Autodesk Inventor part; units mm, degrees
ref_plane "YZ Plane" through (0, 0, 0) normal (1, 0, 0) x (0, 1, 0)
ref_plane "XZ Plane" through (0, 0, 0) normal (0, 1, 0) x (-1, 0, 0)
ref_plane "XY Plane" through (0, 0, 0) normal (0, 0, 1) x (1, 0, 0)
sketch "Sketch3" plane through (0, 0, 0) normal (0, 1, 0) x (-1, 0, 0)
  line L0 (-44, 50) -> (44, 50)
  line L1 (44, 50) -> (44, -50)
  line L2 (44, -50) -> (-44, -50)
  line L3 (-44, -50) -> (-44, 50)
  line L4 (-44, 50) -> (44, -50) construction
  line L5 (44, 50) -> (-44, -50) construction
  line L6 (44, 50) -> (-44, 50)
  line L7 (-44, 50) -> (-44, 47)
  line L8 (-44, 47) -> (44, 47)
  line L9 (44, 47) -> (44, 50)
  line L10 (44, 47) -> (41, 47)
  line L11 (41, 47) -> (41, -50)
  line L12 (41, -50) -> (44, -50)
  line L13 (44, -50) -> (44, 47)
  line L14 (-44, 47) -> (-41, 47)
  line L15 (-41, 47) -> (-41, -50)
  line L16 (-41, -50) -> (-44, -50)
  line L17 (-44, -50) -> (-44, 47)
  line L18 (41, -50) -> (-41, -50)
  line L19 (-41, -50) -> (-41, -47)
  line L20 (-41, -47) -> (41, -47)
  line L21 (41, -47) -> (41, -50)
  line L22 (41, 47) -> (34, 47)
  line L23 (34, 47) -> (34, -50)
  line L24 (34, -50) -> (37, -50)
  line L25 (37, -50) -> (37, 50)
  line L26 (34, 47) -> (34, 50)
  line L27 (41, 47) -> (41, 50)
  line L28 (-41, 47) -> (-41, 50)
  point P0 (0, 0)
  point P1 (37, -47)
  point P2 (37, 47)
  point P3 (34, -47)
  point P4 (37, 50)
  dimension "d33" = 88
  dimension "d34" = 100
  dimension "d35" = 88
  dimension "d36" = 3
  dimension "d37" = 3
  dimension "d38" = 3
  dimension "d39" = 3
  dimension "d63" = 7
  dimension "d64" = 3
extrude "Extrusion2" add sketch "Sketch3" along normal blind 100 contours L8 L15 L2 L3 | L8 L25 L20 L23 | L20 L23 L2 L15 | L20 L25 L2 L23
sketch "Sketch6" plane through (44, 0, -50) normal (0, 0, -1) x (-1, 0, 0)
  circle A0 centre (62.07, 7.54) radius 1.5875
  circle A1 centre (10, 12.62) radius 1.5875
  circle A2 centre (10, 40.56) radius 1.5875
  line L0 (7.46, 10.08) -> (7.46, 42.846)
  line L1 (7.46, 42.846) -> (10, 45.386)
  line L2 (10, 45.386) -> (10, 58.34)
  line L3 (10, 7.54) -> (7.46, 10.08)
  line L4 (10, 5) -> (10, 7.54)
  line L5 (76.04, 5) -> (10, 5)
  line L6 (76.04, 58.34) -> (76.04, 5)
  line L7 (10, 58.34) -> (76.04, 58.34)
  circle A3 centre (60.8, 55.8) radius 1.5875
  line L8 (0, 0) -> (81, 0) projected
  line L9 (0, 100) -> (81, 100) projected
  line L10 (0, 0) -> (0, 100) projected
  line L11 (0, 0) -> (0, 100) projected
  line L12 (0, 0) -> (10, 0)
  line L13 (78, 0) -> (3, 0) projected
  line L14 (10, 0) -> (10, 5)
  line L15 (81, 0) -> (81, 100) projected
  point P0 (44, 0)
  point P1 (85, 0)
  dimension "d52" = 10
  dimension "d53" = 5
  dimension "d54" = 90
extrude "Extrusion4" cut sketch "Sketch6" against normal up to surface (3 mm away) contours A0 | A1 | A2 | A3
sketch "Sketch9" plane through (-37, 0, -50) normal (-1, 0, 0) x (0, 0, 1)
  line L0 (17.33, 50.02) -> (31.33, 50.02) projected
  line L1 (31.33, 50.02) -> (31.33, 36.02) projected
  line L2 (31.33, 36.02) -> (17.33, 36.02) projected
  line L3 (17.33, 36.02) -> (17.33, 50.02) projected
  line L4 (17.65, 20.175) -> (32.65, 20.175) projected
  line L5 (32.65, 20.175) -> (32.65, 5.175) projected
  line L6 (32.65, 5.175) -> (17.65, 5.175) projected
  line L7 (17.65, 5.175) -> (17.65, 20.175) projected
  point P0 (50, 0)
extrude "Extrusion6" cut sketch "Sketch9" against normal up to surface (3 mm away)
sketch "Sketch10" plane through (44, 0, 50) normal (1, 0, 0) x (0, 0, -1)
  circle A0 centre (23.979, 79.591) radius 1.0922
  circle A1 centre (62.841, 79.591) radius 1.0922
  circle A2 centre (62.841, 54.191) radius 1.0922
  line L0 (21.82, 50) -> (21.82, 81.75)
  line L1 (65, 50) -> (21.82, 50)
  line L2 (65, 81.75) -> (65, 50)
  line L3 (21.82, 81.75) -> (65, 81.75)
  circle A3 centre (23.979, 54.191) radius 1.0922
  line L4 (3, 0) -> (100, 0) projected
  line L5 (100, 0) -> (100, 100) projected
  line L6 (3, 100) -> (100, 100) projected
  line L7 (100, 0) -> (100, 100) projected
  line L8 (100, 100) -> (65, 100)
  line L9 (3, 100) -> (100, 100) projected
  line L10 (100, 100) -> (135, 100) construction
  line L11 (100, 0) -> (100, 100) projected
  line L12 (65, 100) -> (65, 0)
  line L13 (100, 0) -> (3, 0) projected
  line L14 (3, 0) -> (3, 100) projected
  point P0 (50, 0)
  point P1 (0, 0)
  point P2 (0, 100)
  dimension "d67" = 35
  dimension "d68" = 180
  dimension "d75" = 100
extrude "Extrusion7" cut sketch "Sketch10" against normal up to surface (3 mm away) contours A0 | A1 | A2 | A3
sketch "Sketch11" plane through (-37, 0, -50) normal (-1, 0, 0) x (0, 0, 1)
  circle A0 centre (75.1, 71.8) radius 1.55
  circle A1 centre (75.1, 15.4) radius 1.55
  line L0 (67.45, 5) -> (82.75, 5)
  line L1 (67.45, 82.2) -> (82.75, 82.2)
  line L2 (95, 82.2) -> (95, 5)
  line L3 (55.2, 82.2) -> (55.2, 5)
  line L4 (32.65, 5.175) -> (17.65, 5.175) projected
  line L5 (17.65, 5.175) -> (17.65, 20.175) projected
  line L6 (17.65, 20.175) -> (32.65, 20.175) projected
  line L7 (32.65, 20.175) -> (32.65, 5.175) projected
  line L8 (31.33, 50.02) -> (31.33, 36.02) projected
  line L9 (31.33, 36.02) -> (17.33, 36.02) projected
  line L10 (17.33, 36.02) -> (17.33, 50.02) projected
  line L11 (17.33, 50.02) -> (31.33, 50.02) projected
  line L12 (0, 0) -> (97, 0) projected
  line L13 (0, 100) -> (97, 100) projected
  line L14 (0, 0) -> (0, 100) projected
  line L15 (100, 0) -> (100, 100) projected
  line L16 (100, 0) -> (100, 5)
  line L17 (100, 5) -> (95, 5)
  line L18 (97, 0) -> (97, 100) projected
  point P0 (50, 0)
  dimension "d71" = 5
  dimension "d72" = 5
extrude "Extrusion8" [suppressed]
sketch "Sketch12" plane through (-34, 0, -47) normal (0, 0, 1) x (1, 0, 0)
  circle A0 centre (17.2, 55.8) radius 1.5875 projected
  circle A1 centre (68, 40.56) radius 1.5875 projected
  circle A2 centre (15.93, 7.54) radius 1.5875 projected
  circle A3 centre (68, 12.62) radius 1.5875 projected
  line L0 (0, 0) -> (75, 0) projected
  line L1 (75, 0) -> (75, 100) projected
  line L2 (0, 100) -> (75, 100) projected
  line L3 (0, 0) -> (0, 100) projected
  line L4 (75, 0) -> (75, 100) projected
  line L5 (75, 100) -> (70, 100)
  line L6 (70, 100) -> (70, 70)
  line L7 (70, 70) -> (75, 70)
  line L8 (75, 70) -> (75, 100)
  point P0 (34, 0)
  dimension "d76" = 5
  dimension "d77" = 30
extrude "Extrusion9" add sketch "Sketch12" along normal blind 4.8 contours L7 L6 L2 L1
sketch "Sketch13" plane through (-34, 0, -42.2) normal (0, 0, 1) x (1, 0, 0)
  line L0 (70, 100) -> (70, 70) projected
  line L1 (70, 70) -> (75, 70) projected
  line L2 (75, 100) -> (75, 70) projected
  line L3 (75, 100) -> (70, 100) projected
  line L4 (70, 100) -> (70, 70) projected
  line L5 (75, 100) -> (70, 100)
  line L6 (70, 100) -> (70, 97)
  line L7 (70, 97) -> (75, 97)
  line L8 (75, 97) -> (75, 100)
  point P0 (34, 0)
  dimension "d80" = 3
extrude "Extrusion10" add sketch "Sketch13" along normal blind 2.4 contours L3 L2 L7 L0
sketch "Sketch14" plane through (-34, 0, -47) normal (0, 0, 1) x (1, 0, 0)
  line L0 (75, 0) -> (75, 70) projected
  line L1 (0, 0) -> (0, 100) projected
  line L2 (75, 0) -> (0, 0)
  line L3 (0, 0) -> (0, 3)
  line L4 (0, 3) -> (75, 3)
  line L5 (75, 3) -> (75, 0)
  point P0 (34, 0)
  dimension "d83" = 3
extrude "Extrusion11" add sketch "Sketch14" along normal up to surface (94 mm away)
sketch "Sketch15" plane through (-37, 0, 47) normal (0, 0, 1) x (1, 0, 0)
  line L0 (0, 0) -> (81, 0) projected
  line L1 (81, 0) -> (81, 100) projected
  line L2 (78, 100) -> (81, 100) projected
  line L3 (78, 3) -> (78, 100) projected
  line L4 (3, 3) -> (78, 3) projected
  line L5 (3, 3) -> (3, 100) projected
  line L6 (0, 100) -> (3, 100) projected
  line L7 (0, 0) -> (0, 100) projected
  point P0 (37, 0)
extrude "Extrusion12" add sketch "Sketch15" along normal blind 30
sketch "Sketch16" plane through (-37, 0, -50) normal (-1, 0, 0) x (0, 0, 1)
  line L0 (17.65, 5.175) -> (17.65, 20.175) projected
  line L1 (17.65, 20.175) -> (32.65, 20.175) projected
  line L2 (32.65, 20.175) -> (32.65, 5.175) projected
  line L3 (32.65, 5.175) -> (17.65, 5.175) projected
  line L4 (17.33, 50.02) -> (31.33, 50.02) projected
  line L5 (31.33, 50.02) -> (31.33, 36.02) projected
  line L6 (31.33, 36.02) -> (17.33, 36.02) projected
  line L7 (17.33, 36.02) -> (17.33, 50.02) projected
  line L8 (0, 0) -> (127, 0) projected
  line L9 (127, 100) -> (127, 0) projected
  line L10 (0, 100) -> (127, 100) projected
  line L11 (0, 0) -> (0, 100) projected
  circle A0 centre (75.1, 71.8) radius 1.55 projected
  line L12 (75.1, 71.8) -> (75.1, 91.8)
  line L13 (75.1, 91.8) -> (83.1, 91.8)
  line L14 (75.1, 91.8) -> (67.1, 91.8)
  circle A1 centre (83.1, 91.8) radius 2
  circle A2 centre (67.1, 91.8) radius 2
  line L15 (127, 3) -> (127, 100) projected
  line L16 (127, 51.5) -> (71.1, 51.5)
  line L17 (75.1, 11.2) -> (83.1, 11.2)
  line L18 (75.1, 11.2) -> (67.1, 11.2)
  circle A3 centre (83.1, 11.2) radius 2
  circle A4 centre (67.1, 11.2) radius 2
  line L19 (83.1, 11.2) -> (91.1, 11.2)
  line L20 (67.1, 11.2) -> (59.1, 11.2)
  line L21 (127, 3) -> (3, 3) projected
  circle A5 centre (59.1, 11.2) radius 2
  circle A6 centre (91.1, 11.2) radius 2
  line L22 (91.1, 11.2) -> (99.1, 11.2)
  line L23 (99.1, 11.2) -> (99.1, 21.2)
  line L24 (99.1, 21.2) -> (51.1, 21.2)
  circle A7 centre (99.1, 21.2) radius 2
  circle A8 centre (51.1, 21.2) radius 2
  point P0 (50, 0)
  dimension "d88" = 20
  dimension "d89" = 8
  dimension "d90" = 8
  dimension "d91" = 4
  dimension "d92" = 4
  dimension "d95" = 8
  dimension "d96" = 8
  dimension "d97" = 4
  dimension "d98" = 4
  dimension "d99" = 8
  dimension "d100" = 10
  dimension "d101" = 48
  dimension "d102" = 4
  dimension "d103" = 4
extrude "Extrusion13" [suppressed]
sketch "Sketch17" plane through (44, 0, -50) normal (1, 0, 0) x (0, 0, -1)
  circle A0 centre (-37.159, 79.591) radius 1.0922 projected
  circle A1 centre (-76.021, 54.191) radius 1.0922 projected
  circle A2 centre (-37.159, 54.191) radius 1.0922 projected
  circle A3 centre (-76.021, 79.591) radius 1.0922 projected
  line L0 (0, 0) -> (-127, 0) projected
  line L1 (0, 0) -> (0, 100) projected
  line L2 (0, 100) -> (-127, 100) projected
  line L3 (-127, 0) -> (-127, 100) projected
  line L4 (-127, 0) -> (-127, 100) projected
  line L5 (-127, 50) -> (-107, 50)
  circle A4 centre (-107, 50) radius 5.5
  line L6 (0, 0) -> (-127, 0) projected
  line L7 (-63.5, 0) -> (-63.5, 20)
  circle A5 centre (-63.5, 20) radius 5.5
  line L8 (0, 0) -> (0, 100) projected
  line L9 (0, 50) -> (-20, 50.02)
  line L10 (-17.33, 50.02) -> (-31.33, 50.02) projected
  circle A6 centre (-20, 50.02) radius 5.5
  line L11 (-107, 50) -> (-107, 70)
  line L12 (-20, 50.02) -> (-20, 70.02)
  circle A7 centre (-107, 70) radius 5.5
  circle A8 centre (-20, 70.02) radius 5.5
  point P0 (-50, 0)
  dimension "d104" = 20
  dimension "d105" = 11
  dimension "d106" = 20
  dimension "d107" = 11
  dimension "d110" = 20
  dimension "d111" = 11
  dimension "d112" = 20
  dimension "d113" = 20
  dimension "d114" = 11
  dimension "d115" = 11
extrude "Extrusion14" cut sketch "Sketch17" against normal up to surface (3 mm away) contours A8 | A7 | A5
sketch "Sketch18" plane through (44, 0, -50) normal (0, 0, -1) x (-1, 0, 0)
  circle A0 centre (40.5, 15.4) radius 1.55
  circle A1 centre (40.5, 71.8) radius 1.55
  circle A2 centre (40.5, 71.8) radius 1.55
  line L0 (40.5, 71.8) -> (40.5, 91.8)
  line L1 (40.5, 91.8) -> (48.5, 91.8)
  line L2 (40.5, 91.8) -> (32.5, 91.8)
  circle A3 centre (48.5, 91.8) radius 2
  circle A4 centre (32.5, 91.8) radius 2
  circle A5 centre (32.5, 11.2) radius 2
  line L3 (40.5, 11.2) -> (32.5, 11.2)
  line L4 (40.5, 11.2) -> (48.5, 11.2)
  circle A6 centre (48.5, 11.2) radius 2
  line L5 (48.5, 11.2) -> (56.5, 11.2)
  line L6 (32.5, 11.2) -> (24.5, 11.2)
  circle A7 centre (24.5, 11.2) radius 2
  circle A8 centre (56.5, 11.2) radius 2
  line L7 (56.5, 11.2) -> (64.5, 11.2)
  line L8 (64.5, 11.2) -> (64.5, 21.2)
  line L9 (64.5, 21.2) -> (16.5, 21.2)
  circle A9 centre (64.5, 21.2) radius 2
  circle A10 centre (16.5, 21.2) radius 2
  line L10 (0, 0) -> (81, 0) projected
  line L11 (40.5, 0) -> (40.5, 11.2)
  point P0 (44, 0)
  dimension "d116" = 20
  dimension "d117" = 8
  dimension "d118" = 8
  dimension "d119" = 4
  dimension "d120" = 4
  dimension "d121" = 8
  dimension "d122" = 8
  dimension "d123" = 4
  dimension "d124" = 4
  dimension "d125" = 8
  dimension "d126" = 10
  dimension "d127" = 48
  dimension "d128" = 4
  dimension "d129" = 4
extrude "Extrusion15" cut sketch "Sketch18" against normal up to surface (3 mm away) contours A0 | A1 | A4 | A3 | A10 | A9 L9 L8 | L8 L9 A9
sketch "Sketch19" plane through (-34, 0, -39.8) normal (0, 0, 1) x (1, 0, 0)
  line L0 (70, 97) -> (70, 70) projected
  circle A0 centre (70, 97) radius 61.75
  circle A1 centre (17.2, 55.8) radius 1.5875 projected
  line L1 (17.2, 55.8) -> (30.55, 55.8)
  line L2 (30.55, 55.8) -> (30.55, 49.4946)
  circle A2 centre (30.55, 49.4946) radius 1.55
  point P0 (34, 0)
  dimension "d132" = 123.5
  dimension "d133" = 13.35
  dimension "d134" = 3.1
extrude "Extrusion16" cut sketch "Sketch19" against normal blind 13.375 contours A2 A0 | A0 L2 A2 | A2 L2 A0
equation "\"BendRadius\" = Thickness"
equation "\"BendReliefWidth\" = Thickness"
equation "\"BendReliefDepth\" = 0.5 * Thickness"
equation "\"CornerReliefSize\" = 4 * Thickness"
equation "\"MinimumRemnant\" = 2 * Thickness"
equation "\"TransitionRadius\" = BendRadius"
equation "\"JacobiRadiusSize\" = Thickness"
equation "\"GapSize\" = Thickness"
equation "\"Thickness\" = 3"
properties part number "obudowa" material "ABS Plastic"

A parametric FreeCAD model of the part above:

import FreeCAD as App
import Part
import Sketcher

V = App.Vector
Q = App.Units.Quantity

doc = App.newDocument("Part")
body = doc.addObject("PartDesign::Body", "Body")

# Sketch on XZ plane
sketch1 = body.newObject("Sketcher::SketchObject", "Sketch")
sketch1.AttachmentSupport = (doc.getObject("XZ_Plane"), [""])
sketch1.MapMode = "FlatFace"
sketch1.addGeometry(Part.LineSegment(V(41, 47, 0), V(44, 47, 0)), False)
sketch1.addGeometry(Part.LineSegment(V(44, 47, 0), V(44, -50, 0)), False)
sketch1.addGeometry(Part.LineSegment(V(44, -50, 0), V(-37, -50, 0)), False)
sketch1.addGeometry(Part.LineSegment(V(-37, -50, 0), V(-37, 47, 0)), False)
sketch1.addGeometry(Part.LineSegment(V(-37, 47, 0), V(-34, 47, 0)), False)
sketch1.addGeometry(Part.LineSegment(V(-34, 47, 0), V(-34, -47, 0)), False)
sketch1.addGeometry(Part.LineSegment(V(-34, -47, 0), V(41, -47, 0)), False)
sketch1.addGeometry(Part.LineSegment(V(41, -47, 0), V(41, 47, 0)), False)
sketch1.addConstraint(Sketcher.Constraint("Coincident", 0, 2, 1, 1))
sketch1.addConstraint(Sketcher.Constraint("Coincident", 1, 2, 2, 1))
sketch1.addConstraint(Sketcher.Constraint("Coincident", 2, 2, 3, 1))
sketch1.addConstraint(Sketcher.Constraint("Coincident", 3, 2, 4, 1))
sketch1.addConstraint(Sketcher.Constraint("Coincident", 4, 2, 5, 1))
sketch1.addConstraint(Sketcher.Constraint("Coincident", 5, 2, 6, 1))
sketch1.addConstraint(Sketcher.Constraint("Coincident", 6, 2, 7, 1))
sketch1.addConstraint(Sketcher.Constraint("Coincident", 7, 2, 0, 1))
sketch1.addConstraint(Sketcher.Constraint("Horizontal", 0))
sketch1.addConstraint(Sketcher.Constraint("Vertical", 1))
sketch1.addConstraint(Sketcher.Constraint("Horizontal", 2))
sketch1.addConstraint(Sketcher.Constraint("Vertical", 3))
sketch1.addConstraint(Sketcher.Constraint("Horizontal", 4))
sketch1.addConstraint(Sketcher.Constraint("Vertical", 5))
sketch1.addConstraint(Sketcher.Constraint("Horizontal", 6))
sketch1.addConstraint(Sketcher.Constraint("Vertical", 7))
sketch1.addConstraint(Sketcher.Constraint("Horizontal", 0, 2, 3, 2))
sketch1.addConstraint(Sketcher.Constraint("Equal", 0, 4))
sketch1.addConstraint(Sketcher.Constraint("DistanceX", 0, 1, 0, 2, Q("3 mm")))
sketch1.addConstraint(Sketcher.Constraint("DistanceY", 2, 2, 5, 2, Q("3 mm")))
sketch1.addConstraint(Sketcher.Constraint("DistanceX", 2, 2, 2, 1, Q("81 mm")))
sketch1.addConstraint(Sketcher.Constraint("DistanceY", 1, 2, 1, 1, Q("97 mm")))
sketch1.addConstraint(Sketcher.Constraint("DistanceX", -1, 1, 0, 2, Q("44 mm")))
sketch1.addConstraint(Sketcher.Constraint("DistanceY", -1, 1, 0, 2, Q("47 mm")))
pad1 = body.newObject("PartDesign::Pad", "Pad")
pad1.Profile = sketch1
pad1.Length = 100
pad1.Reversed = True

# Sketch on XY plane
sketch2 = body.newObject("Sketcher::SketchObject", "Sketch001")
sketch2.AttachmentSupport = (doc.getObject("XY_Plane"), [""])
sketch2.MapMode = "FlatFace"
sketch2.AttachmentOffset = App.Placement(V(0, 0, -50), App.Rotation())
sketch2.addGeometry(Part.Circle(V(-18.1, 7.5, 0), V(0, 0, 1), 1.6), False)
sketch2.addGeometry(Part.Circle(V(34, 12.6, 0), V(0, 0, 1), 1.6), False)
sketch2.addGeometry(Part.Circle(V(34, 40.6, 0), V(0, 0, 1), 1.6), False)
sketch2.addGeometry(Part.Circle(V(-16.8, 55.8, 0), V(0, 0, 1), 1.6), False)
sketch2.addConstraint(Sketcher.Constraint("Equal", 0, 1))
sketch2.addConstraint(Sketcher.Constraint("Equal", 1, 2))
sketch2.addConstraint(Sketcher.Constraint("Equal", 2, 3))
sketch2.addConstraint(Sketcher.Constraint("Vertical", 1, 3, 2, 3))
sketch2.addConstraint(Sketcher.Constraint("Diameter", 0, Q("3.175 mm")))
sketch2.addConstraint(Sketcher.Constraint("DistanceX", -1, 1, 1, 3, Q("34 mm")))
sketch2.addConstraint(Sketcher.Constraint("DistanceX", 3, 3, -1, 1, Q("16.8 mm")))
sketch2.addConstraint(Sketcher.Constraint("DistanceY", -1, 1, 3, 3, Q("55.8 mm")))
sketch2.addConstraint(Sketcher.Constraint("DistanceX", 0, 3, -1, 1, Q("18.07 mm")))
sketch2.addConstraint(Sketcher.Constraint("DistanceY", -1, 1, 0, 3, Q("7.54 mm")))
sketch2.addConstraint(Sketcher.Constraint("DistanceY", -1, 1, 1, 3, Q("12.62 mm")))
sketch2.addConstraint(Sketcher.Constraint("DistanceY", -1, 1, 2, 3, Q("40.56 mm")))
pocket1 = body.newObject("PartDesign::Pocket", "Pocket")
pocket1.Profile = sketch2
pocket1.Length = 3
pocket1.Reversed = True

# Sketch on YZ plane
sketch3 = body.newObject("Sketcher::SketchObject", "Sketch002")
sketch3.AttachmentSupport = (doc.getObject("YZ_Plane"), [""])
sketch3.MapMode = "FlatFace"
sketch3.AttachmentOffset = App.Placement(V(0, 0, -37), App.Rotation())
sketch3.addGeometry(Part.LineSegment(V(50, -19, 0), V(50, -33, 0)), False)
sketch3.addGeometry(Part.LineSegment(V(50, -33, 0), V(36, -33, 0)), False)
sketch3.addGeometry(Part.LineSegment(V(36, -33, 0), V(36, -19, 0)), False)
sketch3.addGeometry(Part.LineSegment(V(36, -19, 0), V(50, -19, 0)), False)
sketch3.addGeometry(Part.LineSegment(V(20, -17, 0), V(20, -32, 0)), False)
sketch3.addGeometry(Part.LineSegment(V(20, -32, 0), V(5, -32, 0)), False)
sketch3.addGeometry(Part.LineSegment(V(5, -32, 0), V(5, -17, 0)), False)
sketch3.addGeometry(Part.LineSegment(V(5, -17, 0), V(20, -17, 0)), False)
sketch3.addConstraint(Sketcher.Constraint("Coincident", 0, 2, 1, 1))
sketch3.addConstraint(Sketcher.Constraint("Coincident", 1, 2, 2, 1))
sketch3.addConstraint(Sketcher.Constraint("Coincident", 2, 2, 3, 1))
sketch3.addConstraint(Sketcher.Constraint("Coincident", 3, 2, 0, 1))
sketch3.addConstraint(Sketcher.Constraint("Coincident", 4, 2, 5, 1))
sketch3.addConstraint(Sketcher.Constraint("Coincident", 5, 2, 6, 1))
sketch3.addConstraint(Sketcher.Constraint("Coincident", 6, 2, 7, 1))
sketch3.addConstraint(Sketcher.Constraint("Coincident", 7, 2, 4, 1))
sketch3.addConstraint(Sketcher.Constraint("Vertical", 0))
sketch3.addConstraint(Sketcher.Constraint("Horizontal", 1))
sketch3.addConstraint(Sketcher.Constraint("Vertical", 2))
sketch3.addConstraint(Sketcher.Constraint("Horizontal", 3))
sketch3.addConstraint(Sketcher.Constraint("Vertical", 4))
sketch3.addConstraint(Sketcher.Constraint("Horizontal", 5))
sketch3.addConstraint(Sketcher.Constraint("Vertical", 6))
sketch3.addConstraint(Sketcher.Constraint("Horizontal", 7))
sketch3.addConstraint(Sketcher.Constraint("Equal", 3, 0))
sketch3.addConstraint(Sketcher.Constraint("Equal", 7, 4))
sketch3.addConstraint(Sketcher.Constraint("DistanceX", 1, 2, 1, 1, Q("14 mm")))
sketch3.addConstraint(Sketcher.Constraint("DistanceX", 5, 2, 5, 1, Q("15 mm")))
sketch3.addConstraint(Sketcher.Constraint("DistanceX", -1, 1, 0, 2, Q("50.02 mm")))
sketch3.addConstraint(Sketcher.Constraint("DistanceY", 0, 2, -1, 1, Q("32.67 mm")))
sketch3.addConstraint(Sketcher.Constraint("DistanceY", 4, 2, -1, 1, Q("32.35 mm")))
sketch3.addConstraint(Sketcher.Constraint("DistanceX", -1, 1, 4, 2, Q("20.175 mm")))
pocket2 = body.newObject("PartDesign::Pocket", "Pocket001")
pocket2.Profile = sketch3
pocket2.Length = 3
pocket2.Reversed = True

# Sketch on YZ plane
sketch4 = body.newObject("Sketcher::SketchObject", "Sketch003")
sketch4.AttachmentSupport = (doc.getObject("YZ_Plane"), [""])
sketch4.MapMode = "FlatFace"
sketch4.AttachmentOffset = App.Placement(V(0, 0, 44), App.Rotation())
sketch4.addGeometry(Part.Circle(V(79.6, 26, 0), V(0, 0, 1), 1.1), False)
sketch4.addGeometry(Part.Circle(V(79.6, -12.8, 0), V(0, 0, 1), 1.1), False)
sketch4.addGeometry(Part.Circle(V(54.2, -12.8, 0), V(0, 0, 1), 1.1), False)
sketch4.addGeometry(Part.Circle(V(54.2, 26, 0), V(0, 0, 1), 1.1), False)
sketch4.addConstraint(Sketcher.Constraint("Equal", 0, 1))
sketch4.addConstraint(Sketcher.Constraint("Equal", 1, 2))
sketch4.addConstraint(Sketcher.Constraint("Equal", 2, 3))
sketch4.addConstraint(Sketcher.Constraint("Horizontal", 1, 3, 2, 3))
sketch4.addConstraint(Sketcher.Constraint("Horizontal", 0, 3, 3, 3))
sketch4.addConstraint(Sketcher.Constraint("Vertical", 0, 3, 1, 3))
sketch4.addConstraint(Sketcher.Constraint("Vertical", 2, 3, 3, 3))
sketch4.addConstraint(Sketcher.Constraint("Diameter", 0, Q("2.1844 mm")))
sketch4.addConstraint(Sketcher.Constraint("DistanceX", 2, 3, 1, 3, Q("25.4 mm")))
sketch4.addConstraint(Sketcher.Constraint("DistanceX", -1, 1, 0, 3, Q("79.591 mm")))
sketch4.addConstraint(Sketcher.Constraint("DistanceY", -1, 1, 0, 3, Q("26.021 mm")))
sketch4.addConstraint(Sketcher.Constraint("DistanceY", 1, 3, -1, 1, Q("12.841 mm")))
pocket3 = body.newObject("PartDesign::Pocket", "Pocket002")
pocket3.Profile = sketch4
pocket3.Length = 3

# Sketch on XY plane
sketch5 = body.newObject("Sketcher::SketchObject", "Sketch004")
sketch5.AttachmentSupport = (doc.getObject("XY_Plane"), [""])
sketch5.MapMode = "FlatFace"
sketch5.AttachmentOffset = App.Placement(V(0, 0, -47), App.Rotation())
sketch5.addGeometry(Part.LineSegment(V(36, 70, 0), V(41, 70, 0)), False)
sketch5.addGeometry(Part.LineSegment(V(41, 70, 0), V(41, 100, 0)), False)
sketch5.addGeometry(Part.LineSegment(V(41, 100, 0), V(36, 100, 0)), False)
sketch5.addGeometry(Part.LineSegment(V(36, 100, 0), V(36, 70, 0)), False)
sketch5.addConstraint(Sketcher.Constraint("Coincident", 0, 2, 1, 1))
sketch5.addConstraint(Sketcher.Constraint("Coincident", 1, 2, 2, 1))
sketch5.addConstraint(Sketcher.Constraint("Coincident", 2, 2, 3, 1))
sketch5.addConstraint(Sketcher.Constraint("Coincident", 3, 2, 0, 1))
sketch5.addConstraint(Sketcher.Constraint("Horizontal", 0))
sketch5.addConstraint(Sketcher.Constraint("Vertical", 1))
sketch5.addConstraint(Sketcher.Constraint("Horizontal", 2))
sketch5.addConstraint(Sketcher.Constraint("Vertical", 3))
sketch5.addConstraint(Sketcher.Constraint("DistanceX", 0, 1, 0, 2, Q("5 mm")))
sketch5.addConstraint(Sketcher.Constraint("DistanceY", 1, 1, 1, 2, Q("30 mm")))
sketch5.addConstraint(Sketcher.Constraint("DistanceX", -1, 1, 0, 2, Q("41 mm")))
sketch5.addConstraint(Sketcher.Constraint("DistanceY", -1, 1, 0, 2, Q("70 mm")))
pad2 = body.newObject("PartDesign::Pad", "Pad001")
pad2.Profile = sketch5
pad2.Length = 4.8

# Sketch on XY plane
sketch6 = body.newObject("Sketcher::SketchObject", "Sketch005")
sketch6.AttachmentSupport = (doc.getObject("XY_Plane"), [""])
sketch6.MapMode = "FlatFace"
sketch6.AttachmentOffset = App.Placement(V(0, 0, -42.2), App.Rotation())
sketch6.addGeometry(Part.LineSegment(V(41, 100, 0), V(36, 100, 0)), False)
sketch6.addGeometry(Part.LineSegment(V(36, 100, 0), V(36, 97, 0)), False)
sketch6.addGeometry(Part.LineSegment(V(36, 97, 0), V(41, 97, 0)), False)
sketch6.addGeometry(Part.LineSegment(V(41, 97, 0), V(41, 100, 0)), False)
sketch6.addConstraint(Sketcher.Constraint("Coincident", 0, 2, 1, 1))
sketch6.addConstraint(Sketcher.Constraint("Coincident", 1, 2, 2, 1))
sketch6.addConstraint(Sketcher.Constraint("Coincident", 2, 2, 3, 1))
sketch6.addConstraint(Sketcher.Constraint("Coincident", 3, 2, 0, 1))
sketch6.addConstraint(Sketcher.Constraint("Horizontal", 0))
sketch6.addConstraint(Sketcher.Constraint("Vertical", 1))
sketch6.addConstraint(Sketcher.Constraint("Horizontal", 2))
sketch6.addConstraint(Sketcher.Constraint("Vertical", 3))
sketch6.addConstraint(Sketcher.Constraint("DistanceY", 1, 2, 1, 1, Q("3 mm")))
sketch6.addConstraint(Sketcher.Constraint("DistanceX", 0, 2, 0, 1, Q("5 mm")))
sketch6.addConstraint(Sketcher.Constraint("DistanceX", -1, 1, 0, 2, Q("36 mm")))
sketch6.addConstraint(Sketcher.Constraint("DistanceY", -1, 1, 0, 2, Q("100 mm")))
pad3 = body.newObject("PartDesign::Pad", "Pad002")
pad3.Profile = sketch6
pad3.Length = 2.4

# Sketch on XY plane
sketch7 = body.newObject("Sketcher::SketchObject", "Sketch006")
sketch7.AttachmentSupport = (doc.getObject("XY_Plane"), [""])
sketch7.MapMode = "FlatFace"
sketch7.AttachmentOffset = App.Placement(V(0, 0, -47), App.Rotation())
sketch7.addGeometry(Part.LineSegment(V(-34, 0, 0), V(41, 0, 0)), False)
sketch7.addGeometry(Part.LineSegment(V(41, 0, 0), V(41, 3, 0)), False)
sketch7.addGeometry(Part.LineSegment(V(41, 3, 0), V(-34, 3, 0)), False)
sketch7.addGeometry(Part.LineSegment(V(-34, 3, 0), V(-34, 0, 0)), False)
sketch7.addConstraint(Sketcher.Constraint("Coincident", 0, 2, 1, 1))
sketch7.addConstraint(Sketcher.Constraint("Coincident", 1, 2, 2, 1))
sketch7.addConstraint(Sketcher.Constraint("Coincident", 2, 2, 3, 1))
sketch7.addConstraint(Sketcher.Constraint("Coincident", 3, 2, 0, 1))
sketch7.addConstraint(Sketcher.Constraint("Horizontal", 0))
sketch7.addConstraint(Sketcher.Constraint("Vertical", 1))
sketch7.addConstraint(Sketcher.Constraint("Horizontal", 2))
sketch7.addConstraint(Sketcher.Constraint("Vertical", 3))
sketch7.addConstraint(Sketcher.Constraint("PointOnObject", 0, 2, -1))
sketch7.addConstraint(Sketcher.Constraint("DistanceY", 1, 1, 1, 2, Q("3 mm")))
sketch7.addConstraint(Sketcher.Constraint("DistanceX", 0, 1, 0, 2, Q("75 mm")))
sketch7.addConstraint(Sketcher.Constraint("DistanceX", -1, 1, 0, 2, Q("41 mm")))
pad4 = body.newObject("PartDesign::Pad", "Pad003")
pad4.Profile = sketch7
pad4.Length = 94

# Sketch on XY plane
sketch8 = body.newObject("Sketcher::SketchObject", "Sketch007")
sketch8.AttachmentSupport = (doc.getObject("XY_Plane"), [""])
sketch8.MapMode = "FlatFace"
sketch8.AttachmentOffset = App.Placement(V(0, 0, 47), App.Rotation())
sketch8.addGeometry(Part.LineSegment(V(-37, 100, 0), V(-37, 0, 0)), False)
sketch8.addGeometry(Part.LineSegment(V(-37, 0, 0), V(44, 0, 0)), False)
sketch8.addGeometry(Part.LineSegment(V(44, 0, 0), V(44, 100, 0)), False)
sketch8.addGeometry(Part.LineSegment(V(44, 100, 0), V(41, 100, 0)), False)
sketch8.addGeometry(Part.LineSegment(V(41, 100, 0), V(41, 3, 0)), False)
sketch8.addGeometry(Part.LineSegment(V(41, 3, 0), V(-34, 3, 0)), False)
sketch8.addGeometry(Part.LineSegment(V(-34, 3, 0), V(-34, 100, 0)), False)
sketch8.addGeometry(Part.LineSegment(V(-34, 100, 0), V(-37, 100, 0)), False)
sketch8.addConstraint(Sketcher.Constraint("Coincident", 0, 2, 1, 1))
sketch8.addConstraint(Sketcher.Constraint("Coincident", 1, 2, 2, 1))
sketch8.addConstraint(Sketcher.Constraint("Coincident", 2, 2, 3, 1))
sketch8.addConstraint(Sketcher.Constraint("Coincident", 3, 2, 4, 1))
sketch8.addConstraint(Sketcher.Constraint("Coincident", 4, 2, 5, 1))
sketch8.addConstraint(Sketcher.Constraint("Coincident", 5, 2, 6, 1))
sketch8.addConstraint(Sketcher.Constraint("Coincident", 6, 2, 7, 1))
sketch8.addConstraint(Sketcher.Constraint("Coincident", 7, 2, 0, 1))
sketch8.addConstraint(Sketcher.Constraint("Vertical", 0))
sketch8.addConstraint(Sketcher.Constraint("Horizontal", 1))
sketch8.addConstraint(Sketcher.Constraint("Vertical", 2))
sketch8.addConstraint(Sketcher.Constraint("Horizontal", 3))
sketch8.addConstraint(Sketcher.Constraint("Vertical", 4))
sketch8.addConstraint(Sketcher.Constraint("Horizontal", 5))
sketch8.addConstraint(Sketcher.Constraint("Vertical", 6))
sketch8.addConstraint(Sketcher.Constraint("Horizontal", 7))
sketch8.addConstraint(Sketcher.Constraint("PointOnObject", 0, 2, -1))
sketch8.addConstraint(Sketcher.Constraint("Horizontal", 3, 2, 6, 2))
sketch8.addConstraint(Sketcher.Constraint("Equal", 3, 7))
sketch8.addConstraint(Sketcher.Constraint("DistanceX", 1, 1, 1, 2, Q("81 mm")))
sketch8.addConstraint(Sketcher.Constraint("DistanceX", 3, 2, 3, 1, Q("3 mm")))
sketch8.addConstraint(Sketcher.Constraint("DistanceY", 0, 2, 0, 1, Q("100 mm")))
sketch8.addConstraint(Sketcher.Constraint("DistanceY", 4, 2, 4, 1, Q("97 mm")))
sketch8.addConstraint(Sketcher.Constraint("DistanceX", 0, 2, -1, 1, Q("37 mm")))
pad5 = body.newObject("PartDesign::Pad", "Pad004")
pad5.Profile = sketch8
pad5.Length = 30

# Sketch on YZ plane
sketch9 = body.newObject("Sketcher::SketchObject", "Sketch008")
sketch9.AttachmentSupport = (doc.getObject("YZ_Plane"), [""])
sketch9.MapMode = "FlatFace"
sketch9.AttachmentOffset = App.Placement(V(0, 0, 44), App.Rotation())
sketch9.addGeometry(Part.Circle(V(70, -30, 0), V(0, 0, 1), 6), False)
sketch9.addGeometry(Part.Circle(V(70, 57, 0), V(0, 0, 1), 6), False)
sketch9.addGeometry(Part.Circle(V(20, 14, 0), V(0, 0, 1), 6), False)
sketch9.addConstraint(Sketcher.Constraint("Equal", 0, 1))
sketch9.addConstraint(Sketcher.Constraint("Equal", 1, 2))
sketch9.addConstraint(Sketcher.Constraint("Diameter", 0, Q("11 mm")))
sketch9.addConstraint(Sketcher.Constraint("DistanceX", -1, 1, 2, 3, Q("20 mm")))
sketch9.addConstraint(Sketcher.Constraint("DistanceY", 0, 3, -1, 1, Q("30 mm")))
sketch9.addConstraint(Sketcher.Constraint("DistanceX", -1, 1, 1, 3, Q("70 mm")))
sketch9.addConstraint(Sketcher.Constraint("DistanceY", -1, 1, 1, 3, Q("57 mm")))
sketch9.addConstraint(Sketcher.Constraint("DistanceY", -1, 1, 2, 3, Q("13.5 mm")))
sketch9.addConstraint(Sketcher.Constraint("DistanceX", -1, 1, 0, 3, Q("70.02 mm")))
pocket4 = body.newObject("PartDesign::Pocket", "Pocket003")
pocket4.Profile = sketch9
pocket4.Length = 3

# Sketch on XY plane
sketch10 = body.newObject("Sketcher::SketchObject", "Sketch009")
sketch10.AttachmentSupport = (doc.getObject("XY_Plane"), [""])
sketch10.MapMode = "FlatFace"
sketch10.AttachmentOffset = App.Placement(V(0, 0, -50), App.Rotation())
sketch10.addGeometry(Part.Circle(V(3.5, 15.4, 0), V(0, 0, 1), 1.6), False)
sketch10.addGeometry(Part.Circle(V(3.5, 71.8, 0), V(0, 0, 1), 1.6), False)
sketch10.addGeometry(Part.Circle(V(11.5, 91.8, 0), V(0, 0, 1), 2), False)
sketch10.addGeometry(Part.Circle(V(-4.5, 91.8, 0), V(0, 0, 1), 2), False)
sketch10.addGeometry(Part.Circle(V(27.5, 21.2, 0), V(0, 0, 1), 2), False)
sketch10.addGeometry(Part.Circle(V(-20.5, 21.2, 0), V(0, 0, 1), 2), False)
sketch10.addConstraint(Sketcher.Constraint("Equal", 0, 1))
sketch10.addConstraint(Sketcher.Constraint("Equal", 2, 3))
sketch10.addConstraint(Sketcher.Constraint("Equal", 3, 4))
sketch10.addConstraint(Sketcher.Constraint("Equal", 4, 5))
sketch10.addConstraint(Sketcher.Constraint("Horizontal", 2, 3, 3, 3))
sketch10.addConstraint(Sketcher.Constraint("Horizontal", 4, 3, 5, 3))
sketch10.addConstraint(Sketcher.Constraint("Vertical", 0, 3, 1, 3))
sketch10.addConstraint(Sketcher.Constraint("Diameter", 2, Q("4 mm")))
sketch10.addConstraint(Sketcher.Constraint("DistanceX", 1, 3, 2, 3, Q("8 mm")))
sketch10.addConstraint(Sketcher.Constraint("DistanceY", 1, 3, 2, 3, Q("20 mm")))
sketch10.addConstraint(Sketcher.Constraint("DistanceX", 3, 3, 1, 3, Q("8 mm")))
sketch10.addConstraint(Sketcher.Constraint("DistanceX", 5, 3, 4, 3, Q("48 mm")))
sketch10.addConstraint(Sketcher.Constraint("Diameter", 0, Q("3.1 mm")))
sketch10.addConstraint(Sketcher.Constraint("DistanceX", 0, 3, 4, 3, Q("24 mm")))
sketch10.addConstraint(Sketcher.Constraint("DistanceX", -1, 1, 0, 3, Q("3.5 mm")))
sketch10.addConstraint(Sketcher.Constraint("DistanceY", -1, 1, 0, 3, Q("15.4 mm")))
sketch10.addConstraint(Sketcher.Constraint("DistanceY", -1, 1, 1, 3, Q("71.8 mm")))
sketch10.addConstraint(Sketcher.Constraint("DistanceY", -1, 1, 4, 3, Q("21.2 mm")))
pocket5 = body.newObject("PartDesign::Pocket", "Pocket004")
pocket5.Profile = sketch10
pocket5.Length = 3
pocket5.Reversed = True

# Sketch on XY plane
sketch11 = body.newObject("Sketcher::SketchObject", "Sketch010")
sketch11.AttachmentSupport = (doc.getObject("XY_Plane"), [""])
sketch11.MapMode = "FlatFace"
sketch11.AttachmentOffset = App.Placement(V(0, 0, -39.8), App.Rotation())
sketch11.addGeometry(Part.Circle(V(-3.5, 49.5, 0), V(0, 0, 1), 1.6), False)
sketch11.addConstraint(Sketcher.Constraint("Diameter", 0, Q("3.1 mm")))
sketch11.addConstraint(Sketcher.Constraint("DistanceX", 0, 3, -1, 1, Q("3.45 mm")))
sketch11.addConstraint(Sketcher.Constraint("DistanceY", -1, 1, 0, 3, Q("49.4946 mm")))
pocket6 = body.newObject("PartDesign::Pocket", "Pocket005")
pocket6.Profile = sketch11
pocket6.Length = 13.375

doc.recompute()
